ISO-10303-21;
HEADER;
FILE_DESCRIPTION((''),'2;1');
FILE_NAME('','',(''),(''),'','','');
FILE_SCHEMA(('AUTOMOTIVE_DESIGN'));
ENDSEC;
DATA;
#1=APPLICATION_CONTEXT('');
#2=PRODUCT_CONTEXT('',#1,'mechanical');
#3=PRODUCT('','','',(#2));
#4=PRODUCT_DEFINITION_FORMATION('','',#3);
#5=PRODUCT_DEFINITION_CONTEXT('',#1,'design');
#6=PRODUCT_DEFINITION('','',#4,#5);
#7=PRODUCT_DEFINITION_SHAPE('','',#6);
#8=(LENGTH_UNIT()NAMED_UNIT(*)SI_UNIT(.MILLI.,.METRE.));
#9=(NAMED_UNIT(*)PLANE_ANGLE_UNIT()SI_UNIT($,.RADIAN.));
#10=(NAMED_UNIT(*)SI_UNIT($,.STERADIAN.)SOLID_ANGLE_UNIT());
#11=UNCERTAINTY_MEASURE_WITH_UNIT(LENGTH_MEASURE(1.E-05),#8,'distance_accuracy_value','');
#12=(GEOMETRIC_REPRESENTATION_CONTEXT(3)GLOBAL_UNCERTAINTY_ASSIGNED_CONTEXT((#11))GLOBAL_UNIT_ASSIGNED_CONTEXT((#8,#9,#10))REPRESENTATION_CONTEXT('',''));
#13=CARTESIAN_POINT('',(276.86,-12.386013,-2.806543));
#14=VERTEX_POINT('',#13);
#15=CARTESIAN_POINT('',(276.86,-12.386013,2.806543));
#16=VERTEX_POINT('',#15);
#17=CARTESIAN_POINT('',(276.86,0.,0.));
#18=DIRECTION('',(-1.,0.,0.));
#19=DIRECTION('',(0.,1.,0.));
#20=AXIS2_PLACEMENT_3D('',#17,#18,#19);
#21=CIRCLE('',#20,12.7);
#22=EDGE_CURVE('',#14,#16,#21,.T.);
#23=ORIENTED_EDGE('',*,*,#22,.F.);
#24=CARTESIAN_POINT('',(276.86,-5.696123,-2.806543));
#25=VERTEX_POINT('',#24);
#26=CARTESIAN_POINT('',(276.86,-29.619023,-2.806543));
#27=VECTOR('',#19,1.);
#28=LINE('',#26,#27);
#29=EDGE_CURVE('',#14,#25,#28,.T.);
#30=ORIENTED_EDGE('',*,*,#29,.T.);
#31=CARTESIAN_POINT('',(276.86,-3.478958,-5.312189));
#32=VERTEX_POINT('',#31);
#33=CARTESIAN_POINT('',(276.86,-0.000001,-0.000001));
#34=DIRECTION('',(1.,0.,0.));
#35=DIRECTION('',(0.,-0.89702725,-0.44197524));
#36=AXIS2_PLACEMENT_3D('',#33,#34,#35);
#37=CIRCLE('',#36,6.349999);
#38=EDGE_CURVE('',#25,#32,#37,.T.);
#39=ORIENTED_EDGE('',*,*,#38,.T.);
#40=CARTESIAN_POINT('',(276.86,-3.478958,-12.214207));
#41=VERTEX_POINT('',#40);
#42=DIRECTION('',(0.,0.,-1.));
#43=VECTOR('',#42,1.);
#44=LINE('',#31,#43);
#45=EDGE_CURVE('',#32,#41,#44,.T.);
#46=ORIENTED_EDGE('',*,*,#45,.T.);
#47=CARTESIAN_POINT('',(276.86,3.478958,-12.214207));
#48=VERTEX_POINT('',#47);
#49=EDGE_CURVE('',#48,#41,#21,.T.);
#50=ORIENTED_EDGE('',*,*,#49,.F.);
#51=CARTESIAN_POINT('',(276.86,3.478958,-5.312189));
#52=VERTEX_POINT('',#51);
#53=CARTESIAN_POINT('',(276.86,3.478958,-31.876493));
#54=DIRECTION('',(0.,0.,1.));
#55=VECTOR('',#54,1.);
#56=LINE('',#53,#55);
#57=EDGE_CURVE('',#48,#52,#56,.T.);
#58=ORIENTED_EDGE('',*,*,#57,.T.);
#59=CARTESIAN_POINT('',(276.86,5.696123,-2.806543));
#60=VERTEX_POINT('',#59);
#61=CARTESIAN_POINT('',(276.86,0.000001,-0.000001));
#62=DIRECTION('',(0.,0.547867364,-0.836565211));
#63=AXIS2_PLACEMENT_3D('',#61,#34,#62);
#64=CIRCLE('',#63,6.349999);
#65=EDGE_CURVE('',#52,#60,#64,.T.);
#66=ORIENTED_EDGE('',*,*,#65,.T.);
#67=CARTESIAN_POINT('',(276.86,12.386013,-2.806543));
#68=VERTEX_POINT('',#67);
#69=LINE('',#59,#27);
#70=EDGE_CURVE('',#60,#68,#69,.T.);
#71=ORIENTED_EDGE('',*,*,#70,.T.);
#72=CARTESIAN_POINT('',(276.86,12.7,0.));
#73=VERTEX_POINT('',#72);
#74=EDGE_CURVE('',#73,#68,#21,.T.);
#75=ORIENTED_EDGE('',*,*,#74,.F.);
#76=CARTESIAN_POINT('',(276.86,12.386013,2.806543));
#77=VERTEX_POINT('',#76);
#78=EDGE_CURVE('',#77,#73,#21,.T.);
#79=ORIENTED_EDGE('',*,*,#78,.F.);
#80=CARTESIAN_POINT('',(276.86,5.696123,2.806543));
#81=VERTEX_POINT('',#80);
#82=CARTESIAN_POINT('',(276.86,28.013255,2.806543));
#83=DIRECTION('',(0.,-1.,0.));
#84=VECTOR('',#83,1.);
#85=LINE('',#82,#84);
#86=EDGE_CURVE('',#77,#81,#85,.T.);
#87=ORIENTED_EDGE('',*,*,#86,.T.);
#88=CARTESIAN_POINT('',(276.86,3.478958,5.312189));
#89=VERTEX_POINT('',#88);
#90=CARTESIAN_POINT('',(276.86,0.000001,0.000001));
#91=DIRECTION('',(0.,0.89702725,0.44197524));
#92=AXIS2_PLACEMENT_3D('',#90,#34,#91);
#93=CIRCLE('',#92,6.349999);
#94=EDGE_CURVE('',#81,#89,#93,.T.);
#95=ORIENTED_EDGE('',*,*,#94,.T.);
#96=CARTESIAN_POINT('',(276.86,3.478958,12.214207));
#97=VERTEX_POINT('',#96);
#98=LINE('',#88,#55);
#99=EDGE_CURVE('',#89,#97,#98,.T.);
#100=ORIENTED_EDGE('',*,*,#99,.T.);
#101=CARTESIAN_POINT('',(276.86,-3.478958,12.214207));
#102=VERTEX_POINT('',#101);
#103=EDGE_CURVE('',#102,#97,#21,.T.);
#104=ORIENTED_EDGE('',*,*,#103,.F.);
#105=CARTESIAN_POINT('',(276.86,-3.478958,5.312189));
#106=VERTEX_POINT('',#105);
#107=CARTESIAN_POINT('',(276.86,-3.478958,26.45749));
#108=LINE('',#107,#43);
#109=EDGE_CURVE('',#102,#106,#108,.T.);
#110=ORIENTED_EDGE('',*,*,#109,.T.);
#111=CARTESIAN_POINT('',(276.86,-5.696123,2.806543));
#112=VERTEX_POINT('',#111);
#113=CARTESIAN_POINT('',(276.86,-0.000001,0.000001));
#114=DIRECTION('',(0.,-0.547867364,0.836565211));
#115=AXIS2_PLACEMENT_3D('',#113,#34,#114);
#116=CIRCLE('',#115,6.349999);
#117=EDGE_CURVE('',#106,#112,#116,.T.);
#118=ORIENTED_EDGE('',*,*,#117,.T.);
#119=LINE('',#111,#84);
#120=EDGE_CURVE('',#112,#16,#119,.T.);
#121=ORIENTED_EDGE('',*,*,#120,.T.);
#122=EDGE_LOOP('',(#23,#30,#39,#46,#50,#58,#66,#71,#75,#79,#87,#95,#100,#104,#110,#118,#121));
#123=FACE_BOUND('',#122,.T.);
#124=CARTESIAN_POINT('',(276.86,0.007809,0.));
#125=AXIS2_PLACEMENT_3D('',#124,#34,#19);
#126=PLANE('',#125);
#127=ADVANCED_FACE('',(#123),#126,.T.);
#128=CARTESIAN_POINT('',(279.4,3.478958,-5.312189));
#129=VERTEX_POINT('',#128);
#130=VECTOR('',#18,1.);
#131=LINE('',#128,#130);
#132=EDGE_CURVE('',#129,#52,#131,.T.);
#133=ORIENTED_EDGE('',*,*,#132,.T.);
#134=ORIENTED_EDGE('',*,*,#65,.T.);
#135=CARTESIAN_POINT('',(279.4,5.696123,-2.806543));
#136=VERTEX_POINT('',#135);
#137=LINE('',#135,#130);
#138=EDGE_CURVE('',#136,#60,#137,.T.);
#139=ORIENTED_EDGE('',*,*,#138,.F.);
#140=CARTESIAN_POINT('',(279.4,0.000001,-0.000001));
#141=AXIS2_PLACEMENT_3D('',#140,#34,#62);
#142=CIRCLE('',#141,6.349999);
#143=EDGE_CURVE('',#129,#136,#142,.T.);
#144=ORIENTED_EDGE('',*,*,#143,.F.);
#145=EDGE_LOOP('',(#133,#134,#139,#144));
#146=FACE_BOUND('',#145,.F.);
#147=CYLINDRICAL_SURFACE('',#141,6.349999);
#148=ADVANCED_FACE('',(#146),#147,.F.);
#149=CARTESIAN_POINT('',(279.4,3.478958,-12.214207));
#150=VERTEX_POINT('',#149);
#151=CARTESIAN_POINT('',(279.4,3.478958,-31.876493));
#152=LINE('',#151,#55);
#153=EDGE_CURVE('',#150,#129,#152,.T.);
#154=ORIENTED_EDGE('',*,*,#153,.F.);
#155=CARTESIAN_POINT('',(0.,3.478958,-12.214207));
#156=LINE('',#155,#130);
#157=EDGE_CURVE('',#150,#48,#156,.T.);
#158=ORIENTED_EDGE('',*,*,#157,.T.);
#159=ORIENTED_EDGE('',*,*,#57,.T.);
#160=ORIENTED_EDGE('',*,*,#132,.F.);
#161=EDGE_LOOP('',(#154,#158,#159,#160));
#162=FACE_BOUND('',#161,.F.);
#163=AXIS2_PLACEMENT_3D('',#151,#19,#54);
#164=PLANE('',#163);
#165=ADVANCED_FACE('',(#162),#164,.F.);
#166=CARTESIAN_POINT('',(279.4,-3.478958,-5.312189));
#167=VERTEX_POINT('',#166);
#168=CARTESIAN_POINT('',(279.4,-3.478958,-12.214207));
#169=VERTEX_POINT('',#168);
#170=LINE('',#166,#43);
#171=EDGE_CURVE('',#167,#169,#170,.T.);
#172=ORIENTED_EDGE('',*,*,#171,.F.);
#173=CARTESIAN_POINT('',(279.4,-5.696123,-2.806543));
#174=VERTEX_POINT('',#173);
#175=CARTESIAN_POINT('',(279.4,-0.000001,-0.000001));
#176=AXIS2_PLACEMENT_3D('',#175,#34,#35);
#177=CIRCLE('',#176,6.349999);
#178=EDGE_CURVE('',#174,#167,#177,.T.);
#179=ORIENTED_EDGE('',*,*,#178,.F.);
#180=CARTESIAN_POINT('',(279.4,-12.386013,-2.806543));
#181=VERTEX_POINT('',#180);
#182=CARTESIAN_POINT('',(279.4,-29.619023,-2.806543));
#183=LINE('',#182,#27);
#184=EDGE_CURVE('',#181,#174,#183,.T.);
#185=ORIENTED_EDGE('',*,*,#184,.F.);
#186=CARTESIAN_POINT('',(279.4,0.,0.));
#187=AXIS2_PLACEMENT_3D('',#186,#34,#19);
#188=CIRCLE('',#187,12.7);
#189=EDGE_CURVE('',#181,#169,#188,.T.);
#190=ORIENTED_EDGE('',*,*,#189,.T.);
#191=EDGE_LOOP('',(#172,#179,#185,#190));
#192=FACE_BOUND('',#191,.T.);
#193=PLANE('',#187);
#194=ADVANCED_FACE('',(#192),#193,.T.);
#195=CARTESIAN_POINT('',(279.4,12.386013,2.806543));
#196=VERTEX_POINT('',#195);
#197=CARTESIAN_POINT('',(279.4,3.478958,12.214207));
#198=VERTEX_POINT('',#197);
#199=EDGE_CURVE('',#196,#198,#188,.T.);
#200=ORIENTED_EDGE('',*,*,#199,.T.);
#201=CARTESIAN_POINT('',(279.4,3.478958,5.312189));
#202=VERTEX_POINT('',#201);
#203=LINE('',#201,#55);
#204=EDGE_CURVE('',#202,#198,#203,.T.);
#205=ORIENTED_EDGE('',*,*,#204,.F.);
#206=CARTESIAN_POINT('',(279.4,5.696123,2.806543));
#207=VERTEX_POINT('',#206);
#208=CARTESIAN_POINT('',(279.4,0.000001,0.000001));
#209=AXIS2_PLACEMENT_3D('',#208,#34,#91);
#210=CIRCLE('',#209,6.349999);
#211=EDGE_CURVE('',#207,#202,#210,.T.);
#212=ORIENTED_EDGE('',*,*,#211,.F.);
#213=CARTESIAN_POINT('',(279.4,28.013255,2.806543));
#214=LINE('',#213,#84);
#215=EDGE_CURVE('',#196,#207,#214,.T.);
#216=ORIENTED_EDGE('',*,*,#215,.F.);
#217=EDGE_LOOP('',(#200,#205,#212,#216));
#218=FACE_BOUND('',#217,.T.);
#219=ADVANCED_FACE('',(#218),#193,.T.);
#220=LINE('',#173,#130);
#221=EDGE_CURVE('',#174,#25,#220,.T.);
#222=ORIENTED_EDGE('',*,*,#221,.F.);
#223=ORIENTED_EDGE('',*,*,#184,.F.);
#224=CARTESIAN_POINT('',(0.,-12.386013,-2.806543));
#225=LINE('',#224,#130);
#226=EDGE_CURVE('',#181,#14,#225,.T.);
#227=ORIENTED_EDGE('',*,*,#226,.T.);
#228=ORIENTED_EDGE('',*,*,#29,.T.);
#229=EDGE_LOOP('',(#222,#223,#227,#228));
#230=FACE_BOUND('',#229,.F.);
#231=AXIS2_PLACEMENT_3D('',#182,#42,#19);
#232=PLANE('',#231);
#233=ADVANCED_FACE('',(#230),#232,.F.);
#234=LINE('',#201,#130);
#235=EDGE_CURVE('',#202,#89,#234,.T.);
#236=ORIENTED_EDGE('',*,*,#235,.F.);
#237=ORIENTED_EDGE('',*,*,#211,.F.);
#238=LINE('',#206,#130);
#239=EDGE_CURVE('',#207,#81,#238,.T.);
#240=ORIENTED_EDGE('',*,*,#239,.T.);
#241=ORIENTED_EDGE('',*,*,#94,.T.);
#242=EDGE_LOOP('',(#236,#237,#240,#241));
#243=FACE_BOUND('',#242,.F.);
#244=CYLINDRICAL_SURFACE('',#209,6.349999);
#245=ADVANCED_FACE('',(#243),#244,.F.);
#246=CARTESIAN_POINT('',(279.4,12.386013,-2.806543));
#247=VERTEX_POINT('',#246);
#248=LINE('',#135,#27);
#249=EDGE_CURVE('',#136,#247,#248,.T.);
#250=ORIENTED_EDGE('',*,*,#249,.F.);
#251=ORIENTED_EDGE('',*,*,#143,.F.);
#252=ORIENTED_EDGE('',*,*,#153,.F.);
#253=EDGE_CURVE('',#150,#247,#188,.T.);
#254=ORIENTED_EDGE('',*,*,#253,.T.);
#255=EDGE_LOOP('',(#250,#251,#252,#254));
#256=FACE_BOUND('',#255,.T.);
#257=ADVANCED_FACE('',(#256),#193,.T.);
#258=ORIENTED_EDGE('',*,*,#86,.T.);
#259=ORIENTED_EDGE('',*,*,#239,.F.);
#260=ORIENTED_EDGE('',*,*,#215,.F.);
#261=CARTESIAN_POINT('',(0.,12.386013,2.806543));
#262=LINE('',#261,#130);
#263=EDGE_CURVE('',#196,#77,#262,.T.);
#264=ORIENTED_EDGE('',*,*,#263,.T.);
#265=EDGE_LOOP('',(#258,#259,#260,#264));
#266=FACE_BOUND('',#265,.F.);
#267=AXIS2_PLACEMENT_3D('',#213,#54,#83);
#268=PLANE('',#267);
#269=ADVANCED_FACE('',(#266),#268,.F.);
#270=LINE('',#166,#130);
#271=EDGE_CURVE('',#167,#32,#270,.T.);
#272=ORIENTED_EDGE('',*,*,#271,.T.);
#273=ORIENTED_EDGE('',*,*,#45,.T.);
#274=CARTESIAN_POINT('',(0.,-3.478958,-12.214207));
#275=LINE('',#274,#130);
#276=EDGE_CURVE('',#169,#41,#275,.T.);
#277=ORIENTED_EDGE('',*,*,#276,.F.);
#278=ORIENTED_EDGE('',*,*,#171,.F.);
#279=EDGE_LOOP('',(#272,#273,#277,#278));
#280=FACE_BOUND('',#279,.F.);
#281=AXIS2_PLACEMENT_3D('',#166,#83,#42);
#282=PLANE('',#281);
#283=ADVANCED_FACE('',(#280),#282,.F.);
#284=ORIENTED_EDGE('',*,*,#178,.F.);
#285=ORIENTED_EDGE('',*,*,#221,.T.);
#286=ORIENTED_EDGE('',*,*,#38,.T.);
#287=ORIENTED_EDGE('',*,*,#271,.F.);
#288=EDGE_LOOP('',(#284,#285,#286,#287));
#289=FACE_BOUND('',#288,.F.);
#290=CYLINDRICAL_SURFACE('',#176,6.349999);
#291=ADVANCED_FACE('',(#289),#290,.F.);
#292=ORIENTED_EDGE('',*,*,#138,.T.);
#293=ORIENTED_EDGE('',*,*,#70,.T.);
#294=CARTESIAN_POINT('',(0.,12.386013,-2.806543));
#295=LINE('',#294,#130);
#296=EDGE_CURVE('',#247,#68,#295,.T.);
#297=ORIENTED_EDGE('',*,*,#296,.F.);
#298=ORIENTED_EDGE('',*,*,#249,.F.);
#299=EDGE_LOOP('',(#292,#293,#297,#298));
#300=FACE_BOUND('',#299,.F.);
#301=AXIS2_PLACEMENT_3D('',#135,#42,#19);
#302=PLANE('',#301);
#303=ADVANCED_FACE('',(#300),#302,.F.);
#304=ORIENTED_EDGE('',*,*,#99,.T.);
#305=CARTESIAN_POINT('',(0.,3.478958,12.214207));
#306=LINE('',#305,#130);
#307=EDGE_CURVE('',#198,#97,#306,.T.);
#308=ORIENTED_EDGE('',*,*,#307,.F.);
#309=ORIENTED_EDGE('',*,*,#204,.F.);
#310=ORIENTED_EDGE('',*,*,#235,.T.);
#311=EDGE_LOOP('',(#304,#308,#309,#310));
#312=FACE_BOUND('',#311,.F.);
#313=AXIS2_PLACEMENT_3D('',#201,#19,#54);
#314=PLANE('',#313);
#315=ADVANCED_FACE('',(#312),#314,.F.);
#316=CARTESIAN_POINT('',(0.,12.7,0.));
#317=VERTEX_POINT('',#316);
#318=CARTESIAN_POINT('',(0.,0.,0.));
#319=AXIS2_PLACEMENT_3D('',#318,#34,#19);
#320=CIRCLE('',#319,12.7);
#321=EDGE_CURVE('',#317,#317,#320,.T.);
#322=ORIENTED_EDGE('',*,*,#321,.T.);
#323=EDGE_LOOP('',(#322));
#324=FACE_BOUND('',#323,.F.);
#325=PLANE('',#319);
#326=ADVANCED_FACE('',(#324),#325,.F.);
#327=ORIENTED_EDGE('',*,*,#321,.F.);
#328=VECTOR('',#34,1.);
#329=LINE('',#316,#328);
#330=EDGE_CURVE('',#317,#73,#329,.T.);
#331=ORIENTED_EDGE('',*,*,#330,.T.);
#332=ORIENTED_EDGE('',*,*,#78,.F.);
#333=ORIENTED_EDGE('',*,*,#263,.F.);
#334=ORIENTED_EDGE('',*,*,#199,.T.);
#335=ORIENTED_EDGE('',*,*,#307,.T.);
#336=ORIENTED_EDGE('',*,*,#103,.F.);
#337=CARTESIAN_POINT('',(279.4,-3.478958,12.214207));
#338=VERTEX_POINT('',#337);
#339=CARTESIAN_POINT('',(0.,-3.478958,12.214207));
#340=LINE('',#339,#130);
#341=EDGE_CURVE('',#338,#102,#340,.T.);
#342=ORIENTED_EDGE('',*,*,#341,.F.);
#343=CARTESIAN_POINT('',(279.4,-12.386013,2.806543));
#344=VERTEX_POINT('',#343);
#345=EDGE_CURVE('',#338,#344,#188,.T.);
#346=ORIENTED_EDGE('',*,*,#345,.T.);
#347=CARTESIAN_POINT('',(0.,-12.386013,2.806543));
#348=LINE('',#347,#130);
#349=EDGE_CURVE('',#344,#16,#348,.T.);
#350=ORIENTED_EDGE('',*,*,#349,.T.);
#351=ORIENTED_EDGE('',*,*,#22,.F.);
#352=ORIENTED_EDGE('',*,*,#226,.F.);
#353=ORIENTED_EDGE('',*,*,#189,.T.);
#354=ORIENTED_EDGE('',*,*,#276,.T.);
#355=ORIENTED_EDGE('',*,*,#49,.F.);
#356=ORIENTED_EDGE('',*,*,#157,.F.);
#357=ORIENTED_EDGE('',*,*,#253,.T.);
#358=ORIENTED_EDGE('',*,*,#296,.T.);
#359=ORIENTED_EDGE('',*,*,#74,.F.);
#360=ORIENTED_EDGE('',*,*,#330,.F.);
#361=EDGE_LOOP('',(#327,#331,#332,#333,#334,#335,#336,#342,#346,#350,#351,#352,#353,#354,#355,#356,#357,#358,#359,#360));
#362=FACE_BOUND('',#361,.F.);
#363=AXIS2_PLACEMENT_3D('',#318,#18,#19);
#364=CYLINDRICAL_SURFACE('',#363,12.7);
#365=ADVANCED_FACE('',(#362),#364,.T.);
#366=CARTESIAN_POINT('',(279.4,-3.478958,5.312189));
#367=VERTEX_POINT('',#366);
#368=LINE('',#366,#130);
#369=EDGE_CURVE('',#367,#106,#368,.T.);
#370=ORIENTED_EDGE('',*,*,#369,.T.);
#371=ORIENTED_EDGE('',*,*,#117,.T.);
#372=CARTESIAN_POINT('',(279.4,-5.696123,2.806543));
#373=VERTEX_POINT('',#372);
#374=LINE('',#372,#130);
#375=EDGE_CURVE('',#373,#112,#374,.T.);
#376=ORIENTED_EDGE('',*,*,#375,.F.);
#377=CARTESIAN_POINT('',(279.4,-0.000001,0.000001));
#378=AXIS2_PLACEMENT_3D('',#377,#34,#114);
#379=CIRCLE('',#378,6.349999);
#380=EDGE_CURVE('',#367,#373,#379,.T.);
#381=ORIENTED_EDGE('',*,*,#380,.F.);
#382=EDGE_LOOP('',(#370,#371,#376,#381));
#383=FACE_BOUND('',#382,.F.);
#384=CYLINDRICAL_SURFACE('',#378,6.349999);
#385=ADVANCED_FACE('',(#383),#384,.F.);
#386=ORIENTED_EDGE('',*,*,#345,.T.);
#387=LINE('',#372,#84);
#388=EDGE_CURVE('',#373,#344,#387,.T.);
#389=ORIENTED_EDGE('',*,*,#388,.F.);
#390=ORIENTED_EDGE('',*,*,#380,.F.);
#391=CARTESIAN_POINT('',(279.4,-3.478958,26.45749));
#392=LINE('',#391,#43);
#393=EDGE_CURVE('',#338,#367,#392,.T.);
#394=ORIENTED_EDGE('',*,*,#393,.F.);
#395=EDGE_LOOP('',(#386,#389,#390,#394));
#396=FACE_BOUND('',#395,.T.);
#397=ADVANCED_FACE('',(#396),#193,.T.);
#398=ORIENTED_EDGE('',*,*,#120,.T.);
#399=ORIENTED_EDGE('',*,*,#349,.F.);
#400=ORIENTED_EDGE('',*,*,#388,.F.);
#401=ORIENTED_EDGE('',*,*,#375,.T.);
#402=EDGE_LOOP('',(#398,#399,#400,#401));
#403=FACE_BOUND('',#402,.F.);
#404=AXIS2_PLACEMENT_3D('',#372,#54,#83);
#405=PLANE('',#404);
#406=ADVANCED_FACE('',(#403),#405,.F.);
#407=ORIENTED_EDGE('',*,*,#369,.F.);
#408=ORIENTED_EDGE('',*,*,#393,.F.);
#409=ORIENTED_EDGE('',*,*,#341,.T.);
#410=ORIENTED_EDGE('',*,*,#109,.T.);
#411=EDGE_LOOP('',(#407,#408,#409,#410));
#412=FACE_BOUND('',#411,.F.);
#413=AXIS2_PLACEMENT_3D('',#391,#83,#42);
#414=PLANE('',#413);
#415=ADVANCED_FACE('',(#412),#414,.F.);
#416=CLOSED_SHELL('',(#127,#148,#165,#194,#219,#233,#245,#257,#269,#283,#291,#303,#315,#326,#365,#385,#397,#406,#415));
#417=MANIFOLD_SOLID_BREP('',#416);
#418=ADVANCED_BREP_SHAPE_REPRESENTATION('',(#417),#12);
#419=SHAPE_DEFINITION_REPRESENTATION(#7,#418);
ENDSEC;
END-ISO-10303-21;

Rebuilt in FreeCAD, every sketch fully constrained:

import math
import FreeCAD as App
import Part
import Sketcher
from FreeCAD import Vector
Q = App.Units.Quantity

doc = App.newDocument("Part")
body = doc.addObject("PartDesign::Body", "Body")

# Sketch on YZ plane
sketch1 = doc.addObject("Sketcher::SketchObject", "Sketch")
body.addObject(sketch1)
sketch1.AttachmentSupport = (doc.YZ_Plane, [""])
sketch1.MapMode = "FlatFace"
sketch1.addGeometry(Part.Circle(Vector(0, 0, 0), Vector(0, 0, 1), 13), False)
sketch1.addConstraint(Sketcher.Constraint("Coincident", 0, 3, -1, 1))
sketch1.addConstraint(Sketcher.Constraint("Diameter", 0, Q("1 in")))
pad1 = doc.addObject("PartDesign::Pad", "Pad")
body.addObject(pad1)
pad1.Profile = sketch1
pad1.Length = Q("11 in")

# Sketch on YZ plane
sketch2 = doc.addObject("Sketcher::SketchObject", "Sketch001")
body.addObject(sketch2)
sketch2.AttachmentSupport = (doc.YZ_Plane, [""])
sketch2.MapMode = "FlatFace"
sketch2.AttachmentOffset = App.Placement(Vector(0, 0, 11 * 25.4), App.Rotation())
sketch2.addGeometry(Part.ArcOfCircle(Part.Circle(Vector(0, 0, 0), Vector(0, 0, 1), 6.3), math.radians(26), math.radians(57)), False)
sketch2.addGeometry(Part.LineSegment(Vector(3.5, 5.3, 0), Vector(3.5, 26.5, 0)), False)
sketch2.addGeometry(Part.LineSegment(Vector(3.5, 26.5, 0), Vector(-3.5, 26.5, 0)), False)
sketch2.addGeometry(Part.LineSegment(Vector(-3.5, 26.5, 0), Vector(-3.5, 5.3, 0)), False)
sketch2.addGeometry(Part.ArcOfCircle(Part.Circle(Vector(0, 0, 0), Vector(0, 0, 1), 6.3), math.radians(123), math.radians(154)), False)
sketch2.addGeometry(Part.LineSegment(Vector(-5.7, 2.8, 0), Vector(-29.6, 2.8, 0)), False)
sketch2.addGeometry(Part.LineSegment(Vector(-29.6, 2.8, 0), Vector(-29.6, -2.8, 0)), False)
sketch2.addGeometry(Part.LineSegment(Vector(-29.6, -2.8, 0), Vector(-5.7, -2.8, 0)), False)
sketch2.addGeometry(Part.ArcOfCircle(Part.Circle(Vector(0, 0, 0), Vector(0, 0, 1), 6.3), math.radians(-154), math.radians(-123)), False)
sketch2.addGeometry(Part.LineSegment(Vector(-3.5, -5.3, 0), Vector(-3.5, -31.9, 0)), False)
sketch2.addGeometry(Part.LineSegment(Vector(-3.5, -31.9, 0), Vector(3.5, -31.9, 0)), False)
sketch2.addGeometry(Part.LineSegment(Vector(3.5, -31.9, 0), Vector(3.5, -5.3, 0)), False)
sketch2.addGeometry(Part.ArcOfCircle(Part.Circle(Vector(0, 0, 0), Vector(0, 0, 1), 6.3), math.radians(-57), math.radians(-26)), False)
sketch2.addGeometry(Part.LineSegment(Vector(5.7, -2.8, 0), Vector(28, -2.8, 0)), False)
sketch2.addGeometry(Part.LineSegment(Vector(28, -2.8, 0), Vector(28, 2.8, 0)), False)
sketch2.addGeometry(Part.LineSegment(Vector(28, 2.8, 0), Vector(5.7, 2.8, 0)), False)
sketch2.addConstraint(Sketcher.Constraint("Coincident", 0, 2, 1, 1))
sketch2.addConstraint(Sketcher.Constraint("Coincident", 1, 2, 2, 1))
sketch2.addConstraint(Sketcher.Constraint("Coincident", 2, 2, 3, 1))
sketch2.addConstraint(Sketcher.Constraint("Coincident", 3, 2, 4, 1))
sketch2.addConstraint(Sketcher.Constraint("Coincident", 4, 2, 5, 1))
sketch2.addConstraint(Sketcher.Constraint("Coincident", 5, 2, 6, 1))
sketch2.addConstraint(Sketcher.Constraint("Coincident", 6, 2, 7, 1))
sketch2.addConstraint(Sketcher.Constraint("Coincident", 7, 2, 8, 1))
sketch2.addConstraint(Sketcher.Constraint("Coincident", 8, 2, 9, 1))
sketch2.addConstraint(Sketcher.Constraint("Coincident", 9, 2, 10, 1))
sketch2.addConstraint(Sketcher.Constraint("Coincident", 10, 2, 11, 1))
sketch2.addConstraint(Sketcher.Constraint("Coincident", 11, 2, 12, 1))
sketch2.addConstraint(Sketcher.Constraint("Coincident", 12, 2, 13, 1))
sketch2.addConstraint(Sketcher.Constraint("Coincident", 13, 2, 14, 1))
sketch2.addConstraint(Sketcher.Constraint("Coincident", 14, 2, 15, 1))
sketch2.addConstraint(Sketcher.Constraint("Coincident", 15, 2, 0, 1))
sketch2.addConstraint(Sketcher.Constraint("Vertical", 1))
sketch2.addConstraint(Sketcher.Constraint("Horizontal", 2))
sketch2.addConstraint(Sketcher.Constraint("Vertical", 3))
sketch2.addConstraint(Sketcher.Constraint("Horizontal", 5))
sketch2.addConstraint(Sketcher.Constraint("Vertical", 6))
sketch2.addConstraint(Sketcher.Constraint("Horizontal", 7))
sketch2.addConstraint(Sketcher.Constraint("Vertical", 9))
sketch2.addConstraint(Sketcher.Constraint("Horizontal", 10))
sketch2.addConstraint(Sketcher.Constraint("Vertical", 11))
sketch2.addConstraint(Sketcher.Constraint("Horizontal", 13))
sketch2.addConstraint(Sketcher.Constraint("Vertical", 14))
sketch2.addConstraint(Sketcher.Constraint("Horizontal", 15))
sketch2.addConstraint(Sketcher.Constraint("Coincident", 0, 3, -1, 1))
sketch2.addConstraint(Sketcher.Constraint("Coincident", 4, 3, -1, 1))
sketch2.addConstraint(Sketcher.Constraint("Coincident", 8, 3, -1, 1))
sketch2.addConstraint(Sketcher.Constraint("Coincident", 12, 3, -1, 1))
sketch2.addConstraint(Sketcher.Constraint("Equal", 0, 4))
sketch2.addConstraint(Sketcher.Constraint("Equal", 4, 8))
sketch2.addConstraint(Sketcher.Constraint("Equal", 8, 12))
sketch2.addConstraint(Sketcher.Constraint("Horizontal", 0, 2, 3, 2))
sketch2.addConstraint(Sketcher.Constraint("Horizontal", 8, 2, 11, 2))
sketch2.addConstraint(Sketcher.Constraint("Horizontal", 7, 2, 12, 2))
sketch2.addConstraint(Sketcher.Constraint("Horizontal", 5, 2, 14, 2))
sketch2.addConstraint(Sketcher.Constraint("Vertical", 4, 2, 7, 2))
sketch2.addConstraint(Sketcher.Constraint("Vertical", 3, 2, 8, 2))
sketch2.addConstraint(Sketcher.Constraint("Radius", 0, Q("0.25 in")))
sketch2.addConstraint(Sketcher.Constraint("DistanceX", 5, 2, 5, 1, 23.9229))
sketch2.addConstraint(Sketcher.Constraint("DistanceY", 1, 1, 1, 2, 21.145301))
sketch2.addConstraint(Sketcher.Constraint("DistanceX", 2, 2, 2, 1, 6.957916))
sketch2.addConstraint(Sketcher.Constraint("DistanceX", 13, 1, 13, 2, 22.317132))
sketch2.addConstraint(Sketcher.Constraint("DistanceY", 6, 2, 6, 1, 5.613086))
sketch2.addConstraint(Sketcher.Constraint("DistanceY", 9, 2, 9, 1, 26.564304))
pocket1 = doc.addObject("PartDesign::Pocket", "Pocket")
body.addObject(pocket1)
pocket1.Profile = sketch2
pocket1.Length = Q("0.1 in")

doc.recompute()
